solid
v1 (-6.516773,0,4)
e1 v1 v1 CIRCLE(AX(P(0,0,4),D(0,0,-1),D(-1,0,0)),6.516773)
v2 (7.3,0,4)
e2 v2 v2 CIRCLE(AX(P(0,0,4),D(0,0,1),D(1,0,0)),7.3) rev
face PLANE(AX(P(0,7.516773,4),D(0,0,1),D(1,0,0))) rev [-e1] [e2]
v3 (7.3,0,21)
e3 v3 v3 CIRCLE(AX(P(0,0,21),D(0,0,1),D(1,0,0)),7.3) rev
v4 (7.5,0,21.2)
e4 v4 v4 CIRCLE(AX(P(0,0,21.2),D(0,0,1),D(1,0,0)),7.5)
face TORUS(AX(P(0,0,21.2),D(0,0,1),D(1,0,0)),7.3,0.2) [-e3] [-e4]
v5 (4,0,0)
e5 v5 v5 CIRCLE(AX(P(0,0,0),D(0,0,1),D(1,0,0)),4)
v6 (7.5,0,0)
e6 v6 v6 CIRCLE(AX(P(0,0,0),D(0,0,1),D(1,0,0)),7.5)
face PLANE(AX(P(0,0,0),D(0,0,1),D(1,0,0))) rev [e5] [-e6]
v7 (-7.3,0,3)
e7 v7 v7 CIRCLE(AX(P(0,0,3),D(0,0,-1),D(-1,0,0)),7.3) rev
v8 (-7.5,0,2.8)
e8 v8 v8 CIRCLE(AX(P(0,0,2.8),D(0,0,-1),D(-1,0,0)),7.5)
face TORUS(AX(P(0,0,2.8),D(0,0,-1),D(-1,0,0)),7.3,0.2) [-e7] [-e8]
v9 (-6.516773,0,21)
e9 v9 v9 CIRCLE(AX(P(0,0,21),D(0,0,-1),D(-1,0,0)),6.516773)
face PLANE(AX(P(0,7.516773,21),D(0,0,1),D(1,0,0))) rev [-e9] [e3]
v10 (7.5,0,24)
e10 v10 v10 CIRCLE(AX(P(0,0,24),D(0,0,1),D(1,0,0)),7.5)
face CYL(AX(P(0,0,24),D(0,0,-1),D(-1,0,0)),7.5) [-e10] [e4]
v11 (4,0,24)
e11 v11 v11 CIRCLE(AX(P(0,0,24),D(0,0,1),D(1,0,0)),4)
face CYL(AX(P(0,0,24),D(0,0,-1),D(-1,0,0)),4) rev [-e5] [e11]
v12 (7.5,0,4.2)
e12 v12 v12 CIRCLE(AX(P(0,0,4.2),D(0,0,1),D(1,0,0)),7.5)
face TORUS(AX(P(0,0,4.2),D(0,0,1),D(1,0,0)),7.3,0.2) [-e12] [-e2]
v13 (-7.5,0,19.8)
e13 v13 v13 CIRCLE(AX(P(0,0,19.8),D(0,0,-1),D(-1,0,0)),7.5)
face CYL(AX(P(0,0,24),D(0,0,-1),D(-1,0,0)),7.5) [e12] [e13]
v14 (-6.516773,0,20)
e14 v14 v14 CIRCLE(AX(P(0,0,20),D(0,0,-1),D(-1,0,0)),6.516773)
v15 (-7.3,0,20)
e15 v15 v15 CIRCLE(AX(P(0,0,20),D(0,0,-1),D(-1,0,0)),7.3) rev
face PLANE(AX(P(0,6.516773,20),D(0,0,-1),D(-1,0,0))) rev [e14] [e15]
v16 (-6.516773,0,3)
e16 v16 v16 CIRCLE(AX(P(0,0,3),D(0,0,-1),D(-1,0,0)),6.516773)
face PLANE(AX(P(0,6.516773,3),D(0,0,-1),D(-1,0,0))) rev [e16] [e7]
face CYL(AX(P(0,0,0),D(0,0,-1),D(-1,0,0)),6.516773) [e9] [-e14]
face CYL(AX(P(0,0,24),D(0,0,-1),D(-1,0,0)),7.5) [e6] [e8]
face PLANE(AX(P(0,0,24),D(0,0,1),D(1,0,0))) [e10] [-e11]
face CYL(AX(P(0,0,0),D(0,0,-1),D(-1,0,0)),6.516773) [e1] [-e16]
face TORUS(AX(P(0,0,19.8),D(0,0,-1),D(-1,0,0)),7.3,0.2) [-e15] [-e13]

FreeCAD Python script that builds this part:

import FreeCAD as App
import Part
import Sketcher
from FreeCAD import Vector


def edges_at(feature, points):
    """Names of the edges that pass closest to the given points."""
    edges = feature.Shape.Edges
    near = lambda p: min(range(len(edges)), key=lambda i: edges[i].distToShape(Part.Vertex(*p))[0])
    return sorted({f"Edge{near(p) + 1}" for p in points})


def add_polygon(sketch, points):
    """Adds a closed chain of lines whose ends are joined by coincident constraints."""
    first, n = sketch.GeometryCount, len(points)
    for a, b in zip(points, points[1:] + points[:1]):
        sketch.addGeometry(Part.LineSegment(App.Vector(*a, 0), App.Vector(*b, 0)), False)
    for i in range(n):
        sketch.addConstraint(Sketcher.Constraint("Coincident", first + i, 2, first + (i + 1) % n, 1))

doc = App.newDocument("Part")
params = doc.addObject("Spreadsheet::Sheet", "Params")
for row, (alias, value) in enumerate([
    ("sketch1_diameter", "15 mm"),
    ("sketch1_diameter2", "8 mm"),
    ("pad1_length", "24 mm"),
    ("sketch2_width", "1 mm"),
    ("groove_angle", "360 deg"),
    ("fillet_radius", "0.2 mm"),
], start=1):
    params.set(f"A{row}", alias)
    params.set(f"B{row}", "=" + value)
    params.setAlias(f"B{row}", alias)

body = doc.addObject("PartDesign::Body", "Body")

sketch1 = doc.addObject("Sketcher::SketchObject", "Sketch")
body.addObject(sketch1)
sketch1.AttachmentSupport = (doc.XY_Plane, [""])
sketch1.MapMode = "FlatFace"
sketch1.addGeometry([
    Part.Circle(Vector(0, 0, 0), Vector(0, 0, 1), 7.5),
    Part.Circle(Vector(0, 0, 0), Vector(0, 0, 1), 4),
], False)
sketch1.addConstraint([
    Sketcher.Constraint("Coincident", 0, 3, -1, 1),
    Sketcher.Constraint("Coincident", 1, 3, -1, 1),
    Sketcher.Constraint("Diameter", 0, 15.0),
    Sketcher.Constraint("Diameter", 1, 8.0),
])
sketch1.setExpression("Constraints[2]", "Params.sketch1_diameter")
sketch1.setExpression("Constraints[3]", "Params.sketch1_diameter2")
pad1 = doc.addObject("PartDesign::Pad", "Pad")
body.addObject(pad1)
pad1.Profile = sketch1
pad1.setExpression("Length", "Params.pad1_length")

sketch2 = doc.addObject("Sketcher::SketchObject", "Sketch001")
body.addObject(sketch2)
sketch2.AttachmentSupport = (doc.YZ_Plane, [""])
sketch2.MapMode = "FlatFace"
add_polygon(sketch2, [(7.5, 21), (6.5, 21), (6.5, 20), (7.5, 20)])
add_polygon(sketch2, [(7.5, 4), (6.5, 4), (6.5, 3), (7.5, 3)])
sketch2.addConstraint([
    Sketcher.Constraint("Horizontal", 0),
    Sketcher.Constraint("Vertical", 1),
    Sketcher.Constraint("Horizontal", 2),
    Sketcher.Constraint("Vertical", 3),
    Sketcher.Constraint("Horizontal", 4),
    Sketcher.Constraint("Vertical", 5),
    Sketcher.Constraint("Horizontal", 6),
    Sketcher.Constraint("Vertical", 7),
    Sketcher.Constraint("Vertical", 1, 2, 4, 2),
    Sketcher.Constraint("Vertical", 3, 2, 6, 2),
    Sketcher.Constraint("Equal", 6, 1),
    Sketcher.Constraint("Equal", 3, 5),
    Sketcher.Constraint("DistanceX", 0, 2, 0, 1, 1.0),
    Sketcher.Constraint("DistanceY", -1, 1, 0, 2, 21.0),
    Sketcher.Constraint("DistanceY", -1, 1, 4, 2, 4.0),
    Sketcher.Constraint("DistanceX", -1, 1, 0, 2, 6.516773),
])
sketch2.setExpression("Constraints[20]", "Params.sketch2_width")
groove = doc.addObject("PartDesign::Groove", "Groove")
body.addObject(groove)
groove.Profile = sketch2
groove.ReferenceAxis = (sketch2, ["V_Axis"])
groove.setExpression("Angle", "Params.groove_angle")
doc.recompute()

fillet = doc.addObject("PartDesign::Fillet", "Fillet")
body.addObject(fillet)
fillet.Base = (groove, edges_at(groove, [
    (-7.5, 0, 21),
    (-7.5, 0, 20),
    (-7.5, 0, 4),
    (-7.5, 0, 3),
]))
fillet.setExpression("Radius", "Params.fillet_radius")

doc.recompute()
